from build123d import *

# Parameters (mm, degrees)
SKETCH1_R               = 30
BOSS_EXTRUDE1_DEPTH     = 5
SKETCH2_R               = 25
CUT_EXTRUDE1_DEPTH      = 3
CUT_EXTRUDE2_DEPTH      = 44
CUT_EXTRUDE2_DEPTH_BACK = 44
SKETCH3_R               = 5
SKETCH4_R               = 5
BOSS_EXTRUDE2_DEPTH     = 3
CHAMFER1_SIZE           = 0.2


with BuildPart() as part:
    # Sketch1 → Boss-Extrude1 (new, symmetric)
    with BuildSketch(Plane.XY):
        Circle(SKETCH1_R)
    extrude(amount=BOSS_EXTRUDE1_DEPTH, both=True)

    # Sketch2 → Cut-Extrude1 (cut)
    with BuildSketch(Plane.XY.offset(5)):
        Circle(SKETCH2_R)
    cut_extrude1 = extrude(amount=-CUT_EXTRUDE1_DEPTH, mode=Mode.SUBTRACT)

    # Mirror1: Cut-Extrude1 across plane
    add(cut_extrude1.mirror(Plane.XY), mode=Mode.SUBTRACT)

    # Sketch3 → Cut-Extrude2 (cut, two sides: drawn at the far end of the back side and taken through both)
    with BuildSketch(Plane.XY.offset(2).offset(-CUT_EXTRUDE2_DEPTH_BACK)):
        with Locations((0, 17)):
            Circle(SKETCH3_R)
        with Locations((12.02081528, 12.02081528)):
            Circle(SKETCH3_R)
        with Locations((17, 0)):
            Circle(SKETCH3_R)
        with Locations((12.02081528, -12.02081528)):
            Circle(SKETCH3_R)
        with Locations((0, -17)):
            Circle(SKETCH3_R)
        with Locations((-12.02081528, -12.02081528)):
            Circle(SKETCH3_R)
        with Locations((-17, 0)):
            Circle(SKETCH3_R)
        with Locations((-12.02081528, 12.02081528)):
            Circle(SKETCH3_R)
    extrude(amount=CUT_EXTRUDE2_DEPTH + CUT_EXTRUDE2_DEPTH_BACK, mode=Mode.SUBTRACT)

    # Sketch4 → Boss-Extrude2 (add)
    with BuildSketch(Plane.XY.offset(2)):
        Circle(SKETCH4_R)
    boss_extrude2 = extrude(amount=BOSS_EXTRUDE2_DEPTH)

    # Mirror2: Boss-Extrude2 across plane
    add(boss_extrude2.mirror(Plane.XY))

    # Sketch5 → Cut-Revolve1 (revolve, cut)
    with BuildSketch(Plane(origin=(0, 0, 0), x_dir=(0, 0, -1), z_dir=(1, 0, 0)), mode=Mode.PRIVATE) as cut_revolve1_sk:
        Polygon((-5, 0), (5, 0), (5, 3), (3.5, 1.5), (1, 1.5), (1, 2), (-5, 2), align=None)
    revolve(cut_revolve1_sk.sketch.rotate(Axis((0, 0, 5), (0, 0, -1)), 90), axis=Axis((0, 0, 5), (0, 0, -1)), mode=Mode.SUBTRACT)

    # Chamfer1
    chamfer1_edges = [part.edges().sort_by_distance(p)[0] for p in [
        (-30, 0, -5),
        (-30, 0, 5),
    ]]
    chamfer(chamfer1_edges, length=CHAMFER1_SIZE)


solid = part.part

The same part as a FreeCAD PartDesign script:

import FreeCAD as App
import Part
import Sketcher

V = App.Vector
Q = App.Units.Quantity


def edges_at(feature, points):
    """Names of the edges that pass closest to the given points."""
    edges = feature.Shape.Edges
    near = lambda p: min(range(len(edges)), key=lambda i: edges[i].distToShape(Part.Vertex(*p))[0])
    return sorted({f"Edge{near(p) + 1}" for p in points})


def add_polygon(sketch, points):
    """Adds a closed chain of lines whose ends are joined by coincident constraints."""
    first, n = sketch.GeometryCount, len(points)
    for a, b in zip(points, points[1:] + points[:1]):
        sketch.addGeometry(Part.LineSegment(App.Vector(*a, 0), App.Vector(*b, 0)), False)
    for i in range(n):
        sketch.addConstraint(Sketcher.Constraint("Coincident", first + i, 2, first + (i + 1) % n, 1))

doc = App.newDocument("Part")
body = doc.addObject("PartDesign::Body", "Body")

sketch1 = body.newObject("Sketcher::SketchObject", "Sketch")
sketch1.AttachmentSupport = (doc.getObject("XY_Plane"), [""])
sketch1.MapMode = "FlatFace"
sketch1.addGeometry(Part.Circle(V(0, 0, 0), V(0, 0, 1), 30), False)
sketch1.addConstraint([
    Sketcher.Constraint("Coincident", 0, 3, -1, 1),
    Sketcher.Constraint("Diameter", 0, 60.0),
])
pad1 = body.newObject("PartDesign::Pad", "Pad")
pad1.Profile = sketch1
pad1.Length = 10
pad1.Midplane = True

sketch2 = body.newObject("Sketcher::SketchObject", "Sketch001")
sketch2.AttachmentSupport = (doc.getObject("XY_Plane"), [""])
sketch2.MapMode = "FlatFace"
sketch2.AttachmentOffset = App.Placement(V(0, 0, 5), App.Rotation())
sketch2.addGeometry(Part.Circle(V(0, 0, 0), V(0, 0, 1), 25), False)
sketch2.addConstraint([
    Sketcher.Constraint("Coincident", 0, 3, -1, 1),
    Sketcher.Constraint("Diameter", 0, 50.0),
])
pocket1 = body.newObject("PartDesign::Pocket", "Pocket")
pocket1.Profile = sketch2
pocket1.Length = 3
doc.recompute()

mirrored = body.newObject("PartDesign::Mirrored", "Mirrored")
mirrored.Originals = [pocket1]
mirrored.MirrorPlane = (doc.getObject("XY_Plane"), [""])
body.Tip = mirrored

sketch3 = body.newObject("Sketcher::SketchObject", "Sketch002")
sketch3.AttachmentSupport = (doc.getObject("XY_Plane"), [""])
sketch3.MapMode = "FlatFace"
sketch3.AttachmentOffset = App.Placement(V(0, 0, 2), App.Rotation())
sketch3.addGeometry([
    Part.Circle(V(0, 17, 0), V(0, 0, 1), 5),
    Part.Circle(V(12, 12, 0), V(0, 0, 1), 5),
    Part.Circle(V(17, 0, 0), V(0, 0, 1), 5),
    Part.Circle(V(12, -12, 0), V(0, 0, 1), 5),
    Part.Circle(V(0, -17, 0), V(0, 0, 1), 5),
    Part.Circle(V(-12, -12, 0), V(0, 0, 1), 5),
    Part.Circle(V(-17, 0, 0), V(0, 0, 1), 5),
    Part.Circle(V(-12, 12, 0), V(0, 0, 1), 5),
], False)
sketch3.addConstraint([
    Sketcher.Constraint("Equal", 0, 1),
    Sketcher.Constraint("Equal", 1, 2),
    Sketcher.Constraint("Equal", 2, 3),
    Sketcher.Constraint("Equal", 3, 4),
    Sketcher.Constraint("Equal", 4, 5),
    Sketcher.Constraint("Equal", 5, 6),
    Sketcher.Constraint("Equal", 6, 7),
    Sketcher.Constraint("Symmetric", 0, 3, 4, 3, -1, 1),
    Sketcher.Constraint("Symmetric", 1, 3, 5, 3, -1, 1),
    Sketcher.Constraint("Symmetric", 2, 3, 6, 3, -1, 1),
    Sketcher.Constraint("Symmetric", 3, 3, 7, 3, -1, 1),
    Sketcher.Constraint("Symmetric", 3, 3, 5, 3, -2),
    Sketcher.Constraint("PointOnObject", 0, 3, -2),
    Sketcher.Constraint("PointOnObject", 2, 3, -1),
    Sketcher.Constraint("Diameter", 0, 10.0),
    Sketcher.Constraint("DistanceY", -1, 1, 0, 3, 17.0),
    Sketcher.Constraint("DistanceX", -1, 1, 2, 3, 17.0),
    Sketcher.Constraint("DistanceY", 3, 3, 1, 3, 24.041631),
    Sketcher.Constraint("DistanceX", 5, 3, 3, 3, 24.041631),
])
pocket2 = body.newObject("PartDesign::Pocket", "Pocket001")
pocket2.Profile = sketch3
pocket2.Type = "ThroughAll"
pocket2.Midplane = True

sketch4 = body.newObject("Sketcher::SketchObject", "Sketch003")
sketch4.AttachmentSupport = (doc.getObject("XY_Plane"), [""])
sketch4.MapMode = "FlatFace"
sketch4.AttachmentOffset = App.Placement(V(0, 0, 2), App.Rotation())
sketch4.addGeometry(Part.Circle(V(0, 0, 0), V(0, 0, 1), 5), False)
sketch4.addConstraint([
    Sketcher.Constraint("Coincident", 0, 3, -1, 1),
    Sketcher.Constraint("Diameter", 0, 10.0),
])
pad2 = body.newObject("PartDesign::Pad", "Pad001")
pad2.Profile = sketch4
pad2.Length = 3
doc.recompute()

mirrored2 = body.newObject("PartDesign::Mirrored", "Mirrored001")
mirrored2.Originals = [pad2]
mirrored2.MirrorPlane = (doc.getObject("XY_Plane"), [""])
body.Tip = mirrored2

sketch5 = body.newObject("Sketcher::SketchObject", "Sketch004")
sketch5.AttachmentSupport = (doc.getObject("YZ_Plane"), [""])
sketch5.MapMode = "FlatFace"
add_polygon(sketch5, [(0, 5), (0, -5), (3, -5), (1.5, -3.5), (1.5, -1), (2, -1), (2, 5)])
sketch5.addConstraint([
    Sketcher.Constraint("Vertical", 0),
    Sketcher.Constraint("Horizontal", 1),
    Sketcher.Constraint("Vertical", 3),
    Sketcher.Constraint("Horizontal", 4),
    Sketcher.Constraint("Vertical", 5),
    Sketcher.Constraint("Horizontal", 6),
    Sketcher.Constraint("Symmetric", 0, 2, 6, 2, -1, 1),
    Sketcher.Constraint("DistanceX", 1, 1, 1, 2, 3.0),
    Sketcher.Constraint("DistanceX", 6, 2, 6, 1, 2.0),
    Sketcher.Constraint("DistanceY", 0, 2, 0, 1, 10.0),
    Sketcher.Constraint("DistanceY", 5, 1, 5, 2, 6.0),
    Sketcher.Constraint("Angle", 2, Q("135 deg")),
    Sketcher.Constraint("DistanceX", 4, 1, 4, 2, 0.5),
])
groove = body.newObject("PartDesign::Groove", "Groove")
groove.Profile = sketch5
groove.ReferenceAxis = (sketch5, ["V_Axis"])
groove.Angle = 360
doc.recompute()

chamfer = body.newObject("PartDesign::Chamfer", "Chamfer")
chamfer.Base = (groove, edges_at(groove, [(-30, 0, -5), (-30, 0, 5)]))
chamfer.Size = 0.2

doc.recompute()
